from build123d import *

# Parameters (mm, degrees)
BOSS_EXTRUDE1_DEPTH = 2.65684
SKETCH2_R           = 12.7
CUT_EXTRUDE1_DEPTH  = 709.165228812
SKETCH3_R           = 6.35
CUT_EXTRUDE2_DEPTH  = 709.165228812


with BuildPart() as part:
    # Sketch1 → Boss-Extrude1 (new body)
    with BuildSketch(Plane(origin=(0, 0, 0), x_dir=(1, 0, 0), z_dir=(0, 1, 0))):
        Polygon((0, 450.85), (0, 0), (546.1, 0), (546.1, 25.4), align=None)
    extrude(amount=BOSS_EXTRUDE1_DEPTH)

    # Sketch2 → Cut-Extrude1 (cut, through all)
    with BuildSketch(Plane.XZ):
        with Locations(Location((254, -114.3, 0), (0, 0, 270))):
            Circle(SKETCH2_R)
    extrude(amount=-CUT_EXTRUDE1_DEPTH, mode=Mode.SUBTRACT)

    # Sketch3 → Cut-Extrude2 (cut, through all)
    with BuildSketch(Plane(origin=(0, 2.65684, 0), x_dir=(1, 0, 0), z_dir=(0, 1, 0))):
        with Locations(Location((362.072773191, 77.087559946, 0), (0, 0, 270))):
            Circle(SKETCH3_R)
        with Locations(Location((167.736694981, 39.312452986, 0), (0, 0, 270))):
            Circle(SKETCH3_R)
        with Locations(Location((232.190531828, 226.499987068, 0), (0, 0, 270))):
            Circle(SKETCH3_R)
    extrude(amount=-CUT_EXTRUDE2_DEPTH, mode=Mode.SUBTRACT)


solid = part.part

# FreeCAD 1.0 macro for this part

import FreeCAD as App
import Part
import Sketcher
Q = App.Units.Quantity

doc = App.newDocument("Part")
body = doc.addObject("PartDesign::Body", "Body")

# Sketch on XZ plane
sketch1 = doc.addObject("Sketcher::SketchObject", "Sketch")
body.addObject(sketch1)
sketch1.AttachmentSupport = (doc.XZ_Plane, [""])
sketch1.MapMode = "FlatFace"
sketch1.addGeometry(Part.LineSegment(App.Vector(0, -451, 0), App.Vector(0, 0, 0)), False)
sketch1.addGeometry(Part.LineSegment(App.Vector(0, 0, 0), App.Vector(546, 0, 0)), False)
sketch1.addGeometry(Part.LineSegment(App.Vector(546, 0, 0), App.Vector(546, -25, 0)), False)
sketch1.addGeometry(Part.LineSegment(App.Vector(546, -25, 0), App.Vector(0, -451, 0)), False)
sketch1.addConstraint(Sketcher.Constraint("Coincident", 0, 2, 1, 1))
sketch1.addConstraint(Sketcher.Constraint("Coincident", 1, 2, 2, 1))
sketch1.addConstraint(Sketcher.Constraint("Coincident", 2, 2, 3, 1))
sketch1.addConstraint(Sketcher.Constraint("Coincident", 3, 2, 0, 1))
sketch1.addConstraint(Sketcher.Constraint("Vertical", 0))
sketch1.addConstraint(Sketcher.Constraint("Horizontal", 1))
sketch1.addConstraint(Sketcher.Constraint("Vertical", 2))
sketch1.addConstraint(Sketcher.Constraint("Coincident", 0, 2, -1, 1))
sketch1.addConstraint(Sketcher.Constraint("DistanceY", 2, 2, 2, 1, Q("1 in")))
sketch1.addConstraint(Sketcher.Constraint("DistanceX", 1, 1, 1, 2, Q("21.5 in")))
sketch1.addConstraint(Sketcher.Constraint("DistanceY", 0, 1, 0, 2, Q("17.75 in")))
pad1 = doc.addObject("PartDesign::Pad", "Pad")
body.addObject(pad1)
pad1.Profile = sketch1
pad1.Length = Q("0.1046 in")
pad1.Reversed = True

# Sketch on XZ plane
sketch2 = doc.addObject("Sketcher::SketchObject", "Sketch001")
body.addObject(sketch2)
sketch2.AttachmentSupport = (doc.XZ_Plane, [""])
sketch2.MapMode = "FlatFace"
sketch2.addGeometry(Part.Circle(App.Vector(254, -114, 0), App.Vector(0, 0, 1), 13), False)
sketch2.addConstraint(Sketcher.Constraint("Diameter", 0, Q("1 in")))
sketch2.addConstraint(Sketcher.Constraint("DistanceX", -1, 1, 0, 3, Q("10 in")))
sketch2.addConstraint(Sketcher.Constraint("DistanceY", 0, 3, -1, 1, Q("4.5 in")))
pocket1 = doc.addObject("PartDesign::Pocket", "Pocket")
body.addObject(pocket1)
pocket1.Profile = sketch2
pocket1.Type = "ThroughAll"

# Sketch on XZ plane
sketch3 = doc.addObject("Sketcher::SketchObject", "Sketch002")
body.addObject(sketch3)
sketch3.AttachmentSupport = (doc.XZ_Plane, [""])
sketch3.MapMode = "FlatFace"
sketch3.AttachmentOffset = App.Placement(App.Vector(0, 0, -0.1046 * 25.4), App.Rotation())
sketch3.addGeometry(Part.Circle(App.Vector(362, -77, 0), App.Vector(0, 0, 1), 6), False)
sketch3.addGeometry(Part.Circle(App.Vector(168, -39, 0), App.Vector(0, 0, 1), 6), False)
sketch3.addGeometry(Part.Circle(App.Vector(232, -226, 0), App.Vector(0, 0, 1), 6), False)
sketch3.addConstraint(Sketcher.Constraint("Equal", 0, 1))
sketch3.addConstraint(Sketcher.Constraint("Equal", 1, 2))
sketch3.addConstraint(Sketcher.Constraint("Diameter", 0, Q("0.5 in")))
sketch3.addConstraint(Sketcher.Constraint("DistanceY", 0, 3, -1, 1, 77.08756))
sketch3.addConstraint(Sketcher.Constraint("DistanceX", -1, 1, 2, 3, 232.190532))
sketch3.addConstraint(Sketcher.Constraint("DistanceX", 1, 3, 0, 3, 194.336078))
sketch3.addConstraint(Sketcher.Constraint("DistanceX", 2, 3, 0, 3, 129.882241))
sketch3.addConstraint(Sketcher.Constraint("DistanceY", 1, 3, -1, 1, 39.312453))
sketch3.addConstraint(Sketcher.Constraint("DistanceY", 2, 3, -1, 1, 226.499987))
pocket2 = doc.addObject("PartDesign::Pocket", "Pocket001")
body.addObject(pocket2)
pocket2.Profile = sketch3
pocket2.Type = "ThroughAll"
pocket2.Reversed = True

doc.recompute()
